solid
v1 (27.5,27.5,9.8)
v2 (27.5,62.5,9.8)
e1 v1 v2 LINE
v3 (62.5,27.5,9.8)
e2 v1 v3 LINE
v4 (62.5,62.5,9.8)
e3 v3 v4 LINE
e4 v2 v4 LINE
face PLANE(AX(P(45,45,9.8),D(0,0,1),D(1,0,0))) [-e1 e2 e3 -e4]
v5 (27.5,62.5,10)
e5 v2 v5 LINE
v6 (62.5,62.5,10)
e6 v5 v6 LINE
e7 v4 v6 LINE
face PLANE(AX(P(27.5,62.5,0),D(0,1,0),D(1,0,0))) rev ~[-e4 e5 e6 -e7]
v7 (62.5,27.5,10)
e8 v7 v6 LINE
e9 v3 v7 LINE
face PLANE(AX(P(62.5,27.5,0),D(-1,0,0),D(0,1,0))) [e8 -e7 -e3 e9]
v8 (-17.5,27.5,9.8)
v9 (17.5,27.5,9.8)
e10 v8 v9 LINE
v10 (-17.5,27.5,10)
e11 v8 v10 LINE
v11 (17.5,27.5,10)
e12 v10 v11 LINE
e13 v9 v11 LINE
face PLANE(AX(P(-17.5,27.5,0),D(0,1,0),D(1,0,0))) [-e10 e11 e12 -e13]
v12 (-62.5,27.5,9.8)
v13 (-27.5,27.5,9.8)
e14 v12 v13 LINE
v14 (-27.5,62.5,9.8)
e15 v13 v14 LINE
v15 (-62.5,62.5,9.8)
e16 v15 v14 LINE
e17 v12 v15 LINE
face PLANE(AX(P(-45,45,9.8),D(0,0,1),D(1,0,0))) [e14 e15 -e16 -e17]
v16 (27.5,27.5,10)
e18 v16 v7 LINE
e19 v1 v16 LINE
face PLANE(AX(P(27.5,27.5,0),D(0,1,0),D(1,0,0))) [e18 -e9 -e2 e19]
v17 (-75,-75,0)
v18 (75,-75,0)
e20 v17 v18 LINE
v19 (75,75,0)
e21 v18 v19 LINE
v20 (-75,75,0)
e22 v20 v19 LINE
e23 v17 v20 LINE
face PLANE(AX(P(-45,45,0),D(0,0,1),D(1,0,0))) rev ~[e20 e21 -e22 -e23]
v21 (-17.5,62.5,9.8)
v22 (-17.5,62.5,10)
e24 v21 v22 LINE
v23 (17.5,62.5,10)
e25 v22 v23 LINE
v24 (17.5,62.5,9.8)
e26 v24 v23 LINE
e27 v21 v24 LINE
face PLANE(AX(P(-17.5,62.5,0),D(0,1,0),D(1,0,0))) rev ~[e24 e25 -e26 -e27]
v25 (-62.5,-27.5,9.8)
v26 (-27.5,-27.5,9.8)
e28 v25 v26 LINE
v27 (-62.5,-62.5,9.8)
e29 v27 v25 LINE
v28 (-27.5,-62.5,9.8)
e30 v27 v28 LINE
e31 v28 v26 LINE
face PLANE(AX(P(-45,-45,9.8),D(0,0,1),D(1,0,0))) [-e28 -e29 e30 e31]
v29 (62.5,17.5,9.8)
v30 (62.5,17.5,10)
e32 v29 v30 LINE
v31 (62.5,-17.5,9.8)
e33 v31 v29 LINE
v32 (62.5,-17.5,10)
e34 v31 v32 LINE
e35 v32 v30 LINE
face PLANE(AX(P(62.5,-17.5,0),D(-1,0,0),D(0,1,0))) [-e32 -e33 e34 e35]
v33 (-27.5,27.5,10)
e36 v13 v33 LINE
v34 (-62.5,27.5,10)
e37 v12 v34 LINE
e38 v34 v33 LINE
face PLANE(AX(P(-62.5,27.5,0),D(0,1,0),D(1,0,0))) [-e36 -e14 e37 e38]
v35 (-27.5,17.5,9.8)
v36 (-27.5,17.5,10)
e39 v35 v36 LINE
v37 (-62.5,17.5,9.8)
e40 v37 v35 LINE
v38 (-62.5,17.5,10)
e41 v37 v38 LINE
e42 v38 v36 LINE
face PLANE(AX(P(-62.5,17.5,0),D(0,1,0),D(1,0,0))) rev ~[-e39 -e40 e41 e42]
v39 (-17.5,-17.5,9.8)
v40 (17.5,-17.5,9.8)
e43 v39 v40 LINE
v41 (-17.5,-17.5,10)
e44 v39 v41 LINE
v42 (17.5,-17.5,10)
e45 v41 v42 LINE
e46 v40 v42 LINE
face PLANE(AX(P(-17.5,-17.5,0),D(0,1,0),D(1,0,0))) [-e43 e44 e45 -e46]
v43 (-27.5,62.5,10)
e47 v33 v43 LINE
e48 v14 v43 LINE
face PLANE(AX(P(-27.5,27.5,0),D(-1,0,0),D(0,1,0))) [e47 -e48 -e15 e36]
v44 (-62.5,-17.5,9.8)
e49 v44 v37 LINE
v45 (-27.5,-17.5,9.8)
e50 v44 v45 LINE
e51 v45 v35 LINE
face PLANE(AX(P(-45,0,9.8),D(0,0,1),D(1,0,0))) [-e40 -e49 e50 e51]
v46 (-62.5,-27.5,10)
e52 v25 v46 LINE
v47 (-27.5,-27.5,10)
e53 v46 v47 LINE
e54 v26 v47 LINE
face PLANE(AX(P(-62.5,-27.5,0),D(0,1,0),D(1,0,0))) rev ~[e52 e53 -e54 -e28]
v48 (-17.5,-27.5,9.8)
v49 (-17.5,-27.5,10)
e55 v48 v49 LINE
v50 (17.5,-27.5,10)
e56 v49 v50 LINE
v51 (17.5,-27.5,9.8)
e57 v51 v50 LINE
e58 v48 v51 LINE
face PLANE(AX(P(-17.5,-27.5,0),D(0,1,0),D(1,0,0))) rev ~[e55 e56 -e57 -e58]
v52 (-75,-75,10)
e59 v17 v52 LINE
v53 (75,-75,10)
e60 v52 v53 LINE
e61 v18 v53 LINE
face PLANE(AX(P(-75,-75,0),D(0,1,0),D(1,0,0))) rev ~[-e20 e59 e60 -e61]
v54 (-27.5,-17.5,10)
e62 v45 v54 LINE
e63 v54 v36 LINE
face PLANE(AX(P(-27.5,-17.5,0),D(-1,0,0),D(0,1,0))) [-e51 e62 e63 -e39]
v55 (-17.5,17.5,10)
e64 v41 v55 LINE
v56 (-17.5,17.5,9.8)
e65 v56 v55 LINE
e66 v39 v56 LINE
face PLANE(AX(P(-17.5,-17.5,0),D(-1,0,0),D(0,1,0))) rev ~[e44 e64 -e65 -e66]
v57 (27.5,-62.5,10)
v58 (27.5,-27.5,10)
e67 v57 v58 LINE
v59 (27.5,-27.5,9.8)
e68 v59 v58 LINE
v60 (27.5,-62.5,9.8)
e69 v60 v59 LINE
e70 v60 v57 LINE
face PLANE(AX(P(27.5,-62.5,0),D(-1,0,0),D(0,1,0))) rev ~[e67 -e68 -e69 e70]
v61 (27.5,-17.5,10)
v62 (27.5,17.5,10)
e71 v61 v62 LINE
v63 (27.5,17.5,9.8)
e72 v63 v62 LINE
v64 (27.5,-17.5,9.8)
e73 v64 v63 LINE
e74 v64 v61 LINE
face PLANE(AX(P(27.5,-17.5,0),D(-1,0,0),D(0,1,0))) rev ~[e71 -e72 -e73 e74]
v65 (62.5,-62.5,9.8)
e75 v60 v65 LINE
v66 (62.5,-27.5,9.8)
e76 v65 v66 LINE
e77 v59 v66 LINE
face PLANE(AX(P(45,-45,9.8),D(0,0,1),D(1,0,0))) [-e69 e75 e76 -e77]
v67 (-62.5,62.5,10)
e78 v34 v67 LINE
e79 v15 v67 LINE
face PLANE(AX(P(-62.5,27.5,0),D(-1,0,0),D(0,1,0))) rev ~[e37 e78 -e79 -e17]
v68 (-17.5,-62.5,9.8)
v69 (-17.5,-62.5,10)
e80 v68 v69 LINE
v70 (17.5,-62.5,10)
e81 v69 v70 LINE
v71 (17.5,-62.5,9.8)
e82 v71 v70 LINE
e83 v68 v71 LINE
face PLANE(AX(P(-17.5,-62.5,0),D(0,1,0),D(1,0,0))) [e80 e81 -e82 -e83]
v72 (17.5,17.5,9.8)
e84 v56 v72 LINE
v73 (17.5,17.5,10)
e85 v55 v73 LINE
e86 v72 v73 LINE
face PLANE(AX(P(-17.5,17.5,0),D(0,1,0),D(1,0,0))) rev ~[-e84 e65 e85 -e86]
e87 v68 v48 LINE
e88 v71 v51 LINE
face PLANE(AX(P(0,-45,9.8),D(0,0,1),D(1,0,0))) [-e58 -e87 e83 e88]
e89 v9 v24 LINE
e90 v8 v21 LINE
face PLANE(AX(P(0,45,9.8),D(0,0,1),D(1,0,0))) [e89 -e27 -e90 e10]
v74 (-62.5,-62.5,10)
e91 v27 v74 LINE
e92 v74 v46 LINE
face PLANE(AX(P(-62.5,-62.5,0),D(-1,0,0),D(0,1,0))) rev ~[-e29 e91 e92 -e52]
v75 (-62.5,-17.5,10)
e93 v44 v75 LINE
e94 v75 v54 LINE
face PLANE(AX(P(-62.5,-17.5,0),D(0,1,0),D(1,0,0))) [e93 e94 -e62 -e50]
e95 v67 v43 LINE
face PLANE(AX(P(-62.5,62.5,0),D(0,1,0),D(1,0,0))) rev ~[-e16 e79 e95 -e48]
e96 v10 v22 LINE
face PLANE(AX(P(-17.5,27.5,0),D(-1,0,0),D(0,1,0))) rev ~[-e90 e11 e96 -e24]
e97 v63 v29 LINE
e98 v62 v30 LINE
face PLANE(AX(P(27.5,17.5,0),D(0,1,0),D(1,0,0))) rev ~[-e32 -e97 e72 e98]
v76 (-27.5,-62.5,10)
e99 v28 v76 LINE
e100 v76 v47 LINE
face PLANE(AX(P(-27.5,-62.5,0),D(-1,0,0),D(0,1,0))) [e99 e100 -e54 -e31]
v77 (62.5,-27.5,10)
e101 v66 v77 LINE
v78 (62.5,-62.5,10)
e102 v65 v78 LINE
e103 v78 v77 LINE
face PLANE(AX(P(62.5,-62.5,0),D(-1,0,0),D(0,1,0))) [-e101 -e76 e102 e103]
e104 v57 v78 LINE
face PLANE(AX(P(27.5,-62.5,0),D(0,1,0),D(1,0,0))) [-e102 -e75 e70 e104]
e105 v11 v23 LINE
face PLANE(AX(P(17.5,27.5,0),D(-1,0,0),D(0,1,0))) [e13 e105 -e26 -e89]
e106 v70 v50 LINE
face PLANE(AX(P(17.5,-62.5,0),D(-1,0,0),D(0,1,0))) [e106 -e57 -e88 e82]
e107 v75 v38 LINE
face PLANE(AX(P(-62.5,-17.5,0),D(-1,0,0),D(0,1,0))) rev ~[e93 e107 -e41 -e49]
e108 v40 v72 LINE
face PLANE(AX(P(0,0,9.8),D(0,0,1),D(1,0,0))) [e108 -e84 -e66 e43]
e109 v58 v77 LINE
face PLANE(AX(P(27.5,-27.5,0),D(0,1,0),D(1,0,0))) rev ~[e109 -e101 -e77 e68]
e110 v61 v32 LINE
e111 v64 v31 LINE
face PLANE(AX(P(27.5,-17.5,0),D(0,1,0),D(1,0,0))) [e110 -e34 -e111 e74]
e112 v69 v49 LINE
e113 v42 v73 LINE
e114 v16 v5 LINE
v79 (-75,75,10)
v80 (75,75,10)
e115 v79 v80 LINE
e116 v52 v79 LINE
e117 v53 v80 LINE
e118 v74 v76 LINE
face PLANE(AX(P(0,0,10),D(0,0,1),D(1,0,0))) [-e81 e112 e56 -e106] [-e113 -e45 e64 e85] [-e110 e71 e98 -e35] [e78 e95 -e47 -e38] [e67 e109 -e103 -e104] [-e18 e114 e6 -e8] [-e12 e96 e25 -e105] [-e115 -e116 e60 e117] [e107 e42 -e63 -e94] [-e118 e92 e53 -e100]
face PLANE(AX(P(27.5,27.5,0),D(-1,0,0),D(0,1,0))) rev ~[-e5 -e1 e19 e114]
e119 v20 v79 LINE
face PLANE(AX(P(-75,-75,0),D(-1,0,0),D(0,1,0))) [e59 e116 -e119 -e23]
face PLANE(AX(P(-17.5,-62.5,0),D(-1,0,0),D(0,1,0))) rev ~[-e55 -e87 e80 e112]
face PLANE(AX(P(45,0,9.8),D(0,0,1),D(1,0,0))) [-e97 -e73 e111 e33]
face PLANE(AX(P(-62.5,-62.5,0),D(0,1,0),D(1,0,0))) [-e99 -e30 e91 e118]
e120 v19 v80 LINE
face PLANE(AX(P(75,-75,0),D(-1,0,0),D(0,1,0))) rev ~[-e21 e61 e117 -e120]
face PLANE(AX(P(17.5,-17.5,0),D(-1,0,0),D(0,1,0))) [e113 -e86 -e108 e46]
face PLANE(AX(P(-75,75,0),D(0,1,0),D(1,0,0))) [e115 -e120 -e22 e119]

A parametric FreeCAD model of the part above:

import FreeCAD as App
import Part
import Sketcher


def add_polygon(sketch, points):
    """Adds a closed chain of lines whose ends are joined by coincident constraints."""
    first, n = sketch.GeometryCount, len(points)
    for a, b in zip(points, points[1:] + points[:1]):
        sketch.addGeometry(Part.LineSegment(App.Vector(*a, 0), App.Vector(*b, 0)), False)
    for i in range(n):
        sketch.addConstraint(Sketcher.Constraint("Coincident", first + i, 2, first + (i + 1) % n, 1))

doc = App.newDocument("Part")
body = doc.addObject("PartDesign::Body", "Body")

# Sketch on XY plane
sketch1 = doc.addObject("Sketcher::SketchObject", "Sketch")
body.addObject(sketch1)
sketch1.AttachmentSupport = (doc.XY_Plane, [""])
sketch1.MapMode = "FlatFace"
add_polygon(sketch1, [(-75, 75), (-75, -75), (75, -75), (75, 75)])  # lines 0-3
add_polygon(sketch1, [(-28, -62), (-62, -62), (-62, -28), (-28, -28)])  # lines 4-7
add_polygon(sketch1, [(18, -62), (-18, -62), (-18, -28), (18, -28)])  # lines 8-11
add_polygon(sketch1, [(62, -62), (28, -62), (28, -28), (62, -28)])  # lines 12-15
add_polygon(sketch1, [(-28, -18), (-62, -18), (-62, 18), (-28, 18)])  # lines 16-19
add_polygon(sketch1, [(-28, 28), (-62, 28), (-62, 62), (-28, 62)])  # lines 20-23
add_polygon(sketch1, [(18, -18), (-18, -18), (-18, 18), (18, 18)])  # lines 24-27
add_polygon(sketch1, [(62, -18), (28, -18), (28, 18), (62, 18)])  # lines 28-31
add_polygon(sketch1, [(18, 28), (-18, 28), (-18, 62), (18, 62)])  # lines 32-35
add_polygon(sketch1, [(62, 28), (28, 28), (28, 62), (62, 62)])  # lines 36-39
sketch1.addConstraint([
    Sketcher.Constraint("Vertical", 0),
    Sketcher.Constraint("Horizontal", 1),
    Sketcher.Constraint("Vertical", 2),
    Sketcher.Constraint("Horizontal", 3),
    Sketcher.Constraint("Horizontal", 4),
    Sketcher.Constraint("Vertical", 5),
    Sketcher.Constraint("Horizontal", 6),
    Sketcher.Constraint("Vertical", 7),
    Sketcher.Constraint("Horizontal", 8),
    Sketcher.Constraint("Vertical", 9),
    Sketcher.Constraint("Horizontal", 10),
    Sketcher.Constraint("Vertical", 11),
    Sketcher.Constraint("Horizontal", 12),
    Sketcher.Constraint("Vertical", 13),
    Sketcher.Constraint("Horizontal", 14),
    Sketcher.Constraint("Vertical", 15),
    Sketcher.Constraint("Horizontal", 16),
    Sketcher.Constraint("Vertical", 17),
    Sketcher.Constraint("Horizontal", 18),
    Sketcher.Constraint("Vertical", 19),
    Sketcher.Constraint("Horizontal", 20),
    Sketcher.Constraint("Vertical", 21),
    Sketcher.Constraint("Horizontal", 22),
    Sketcher.Constraint("Vertical", 23),
    Sketcher.Constraint("Horizontal", 24),
    Sketcher.Constraint("Vertical", 25),
    Sketcher.Constraint("Horizontal", 26),
    Sketcher.Constraint("Vertical", 27),
    Sketcher.Constraint("Horizontal", 28),
    Sketcher.Constraint("Vertical", 29),
    Sketcher.Constraint("Horizontal", 30),
    Sketcher.Constraint("Vertical", 31),
    Sketcher.Constraint("Horizontal", 32),
    Sketcher.Constraint("Vertical", 33),
    Sketcher.Constraint("Horizontal", 34),
    Sketcher.Constraint("Vertical", 35),
    Sketcher.Constraint("Horizontal", 36),
    Sketcher.Constraint("Vertical", 37),
    Sketcher.Constraint("Horizontal", 38),
    Sketcher.Constraint("Vertical", 39),
    Sketcher.Constraint("Symmetric", 0, 2, 2, 2, -1, 1),
    Sketcher.Constraint("Symmetric", 14, 2, 20, 2, -1, 1),
    Sketcher.Constraint("Symmetric", 12, 2, 22, 2, -1, 1),
    Sketcher.Constraint("Symmetric", 24, 2, 26, 2, -1, 1),
    Sketcher.Constraint("Symmetric", 18, 2, 28, 2, -1, 1),
    Sketcher.Constraint("Symmetric", 16, 2, 30, 2, -1, 1),
    Sketcher.Constraint("Symmetric", 10, 2, 32, 2, -1, 1),
    Sketcher.Constraint("Symmetric", 8, 2, 34, 2, -1, 1),
    Sketcher.Constraint("Symmetric", 6, 2, 36, 2, -1, 1),
    Sketcher.Constraint("Symmetric", 4, 2, 38, 2, -1, 1),
    Sketcher.Constraint("Symmetric", 7, 2, 12, 2, -2),
    Sketcher.Constraint("Symmetric", 5, 2, 14, 2, -2),
    Sketcher.Constraint("Horizontal", 7, 2, 8, 2),
    Sketcher.Constraint("Horizontal", 6, 2, 9, 2),
    Sketcher.Constraint("Horizontal", 19, 2, 24, 2),
    Sketcher.Constraint("Horizontal", 18, 2, 25, 2),
    Sketcher.Constraint("Vertical", 5, 2, 16, 2),
    Sketcher.Constraint("Vertical", 7, 2, 18, 2),
    Sketcher.Constraint("Vertical", 9, 2, 24, 2),
    Sketcher.Constraint("Vertical", 11, 2, 26, 2),
    Sketcher.Constraint("Equal", 6, 8),
    Sketcher.Constraint("Equal", 3, 0),
    Sketcher.Constraint("Equal", 38, 5),
    Sketcher.Constraint("Equal", 15, 17),
    Sketcher.Constraint("DistanceX", 1, 1, 1, 2, 150.0),
    Sketcher.Constraint("DistanceX", 4, 2, 4, 1, 35.0),
    Sketcher.Constraint("DistanceX", 7, 2, 8, 2, 10.0),
    Sketcher.Constraint("DistanceY", 5, 2, 16, 2, 10.0),
])
pad1 = doc.addObject("PartDesign::Pad", "Pad")
body.addObject(pad1)
pad1.Profile = sketch1
pad1.Length = 10

# Sketch on XY plane
sketch2 = doc.addObject("Sketcher::SketchObject", "Sketch001")
body.addObject(sketch2)
sketch2.AttachmentSupport = (doc.XY_Plane, [""])
sketch2.MapMode = "FlatFace"
add_polygon(sketch2, [(-62, 62), (-62, 28), (-28, 28), (-28, 62)])  # lines 0-3
add_polygon(sketch2, [(-62, 18), (-62, -18), (-28, -18), (-28, 18)])  # lines 4-7
add_polygon(sketch2, [(-62, -28), (-62, -62), (-28, -62), (-28, -28)])  # lines 8-11
add_polygon(sketch2, [(-18, -28), (-18, -62), (18, -62), (18, -28)])  # lines 12-15
add_polygon(sketch2, [(-18, 18), (-18, -18), (18, -18), (18, 18)])  # lines 16-19
add_polygon(sketch2, [(-18, 62), (-18, 28), (18, 28), (18, 62)])  # lines 20-23
add_polygon(sketch2, [(28, 62), (28, 28), (62, 28), (62, 62)])  # lines 24-27
add_polygon(sketch2, [(28, 18), (28, -18), (62, -18), (62, 18)])  # lines 28-31
add_polygon(sketch2, [(28, -28), (28, -62), (62, -62), (62, -28)])  # lines 32-35
sketch2.addConstraint([
    Sketcher.Constraint("Vertical", 0),
    Sketcher.Constraint("Horizontal", 1),
    Sketcher.Constraint("Vertical", 2),
    Sketcher.Constraint("Horizontal", 3),
    Sketcher.Constraint("Vertical", 4),
    Sketcher.Constraint("Horizontal", 5),
    Sketcher.Constraint("Vertical", 6),
    Sketcher.Constraint("Horizontal", 7),
    Sketcher.Constraint("Vertical", 8),
    Sketcher.Constraint("Horizontal", 9),
    Sketcher.Constraint("Vertical", 10),
    Sketcher.Constraint("Horizontal", 11),
    Sketcher.Constraint("Vertical", 12),
    Sketcher.Constraint("Horizontal", 13),
    Sketcher.Constraint("Vertical", 14),
    Sketcher.Constraint("Horizontal", 15),
    Sketcher.Constraint("Vertical", 16),
    Sketcher.Constraint("Horizontal", 17),
    Sketcher.Constraint("Vertical", 18),
    Sketcher.Constraint("Horizontal", 19),
    Sketcher.Constraint("Vertical", 20),
    Sketcher.Constraint("Horizontal", 21),
    Sketcher.Constraint("Vertical", 22),
    Sketcher.Constraint("Horizontal", 23),
    Sketcher.Constraint("Vertical", 24),
    Sketcher.Constraint("Horizontal", 25),
    Sketcher.Constraint("Vertical", 26),
    Sketcher.Constraint("Horizontal", 27),
    Sketcher.Constraint("Vertical", 28),
    Sketcher.Constraint("Horizontal", 29),
    Sketcher.Constraint("Vertical", 30),
    Sketcher.Constraint("Horizontal", 31),
    Sketcher.Constraint("Vertical", 32),
    Sketcher.Constraint("Horizontal", 33),
    Sketcher.Constraint("Vertical", 34),
    Sketcher.Constraint("Horizontal", 35),
    Sketcher.Constraint("Symmetric", 16, 2, 18, 2, -1, 1),
    Sketcher.Constraint("Symmetric", 14, 2, 20, 2, -1, 1),
    Sketcher.Constraint("Symmetric", 12, 2, 22, 2, -1, 1),
    Sketcher.Constraint("Symmetric", 10, 2, 24, 2, -1, 1),
    Sketcher.Constraint("Symmetric", 8, 2, 26, 2, -1, 1),
    Sketcher.Constraint("Symmetric", 6, 2, 28, 2, -1, 1),
    Sketcher.Constraint("Symmetric", 4, 2, 30, 2, -1, 1),
    Sketcher.Constraint("Symmetric", 2, 2, 32, 2, -1, 1),
    Sketcher.Constraint("Symmetric", 0, 2, 34, 2, -1, 1),
    Sketcher.Constraint("Symmetric", 1, 2, 24, 2, -2),
    Sketcher.Constraint("Symmetric", 3, 2, 26, 2, -2),
    Sketcher.Constraint("Horizontal", 9, 2, 12, 2),
    Sketcher.Constraint("Horizontal", 11, 2, 14, 2),
    Sketcher.Constraint("Horizontal", 5, 2, 16, 2),
    Sketcher.Constraint("Horizontal", 7, 2, 18, 2),
    Sketcher.Constraint("Vertical", 3, 2, 4, 2),
    Sketcher.Constraint("Vertical", 2, 2, 5, 2),
    Sketcher.Constraint("Vertical", 15, 2, 16, 2),
    Sketcher.Constraint("Vertical", 14, 2, 17, 2),
    Sketcher.Constraint("Equal", 11, 13),
    Sketcher.Constraint("Equal", 35, 0),
    Sketcher.Constraint("Equal", 2, 4),
    Sketcher.Constraint("DistanceX", 1, 1, 1, 2, 35.0),
    Sketcher.Constraint("DistanceY", 4, 2, 0, 2, 45.0),
    Sketcher.Constraint("DistanceX", 9, 2, 12, 2, 10.0),
])
pad2 = doc.addObject("PartDesign::Pad", "Pad001")
body.addObject(pad2)
pad2.Profile = sketch2
pad2.Length = 9.8

doc.recompute()
